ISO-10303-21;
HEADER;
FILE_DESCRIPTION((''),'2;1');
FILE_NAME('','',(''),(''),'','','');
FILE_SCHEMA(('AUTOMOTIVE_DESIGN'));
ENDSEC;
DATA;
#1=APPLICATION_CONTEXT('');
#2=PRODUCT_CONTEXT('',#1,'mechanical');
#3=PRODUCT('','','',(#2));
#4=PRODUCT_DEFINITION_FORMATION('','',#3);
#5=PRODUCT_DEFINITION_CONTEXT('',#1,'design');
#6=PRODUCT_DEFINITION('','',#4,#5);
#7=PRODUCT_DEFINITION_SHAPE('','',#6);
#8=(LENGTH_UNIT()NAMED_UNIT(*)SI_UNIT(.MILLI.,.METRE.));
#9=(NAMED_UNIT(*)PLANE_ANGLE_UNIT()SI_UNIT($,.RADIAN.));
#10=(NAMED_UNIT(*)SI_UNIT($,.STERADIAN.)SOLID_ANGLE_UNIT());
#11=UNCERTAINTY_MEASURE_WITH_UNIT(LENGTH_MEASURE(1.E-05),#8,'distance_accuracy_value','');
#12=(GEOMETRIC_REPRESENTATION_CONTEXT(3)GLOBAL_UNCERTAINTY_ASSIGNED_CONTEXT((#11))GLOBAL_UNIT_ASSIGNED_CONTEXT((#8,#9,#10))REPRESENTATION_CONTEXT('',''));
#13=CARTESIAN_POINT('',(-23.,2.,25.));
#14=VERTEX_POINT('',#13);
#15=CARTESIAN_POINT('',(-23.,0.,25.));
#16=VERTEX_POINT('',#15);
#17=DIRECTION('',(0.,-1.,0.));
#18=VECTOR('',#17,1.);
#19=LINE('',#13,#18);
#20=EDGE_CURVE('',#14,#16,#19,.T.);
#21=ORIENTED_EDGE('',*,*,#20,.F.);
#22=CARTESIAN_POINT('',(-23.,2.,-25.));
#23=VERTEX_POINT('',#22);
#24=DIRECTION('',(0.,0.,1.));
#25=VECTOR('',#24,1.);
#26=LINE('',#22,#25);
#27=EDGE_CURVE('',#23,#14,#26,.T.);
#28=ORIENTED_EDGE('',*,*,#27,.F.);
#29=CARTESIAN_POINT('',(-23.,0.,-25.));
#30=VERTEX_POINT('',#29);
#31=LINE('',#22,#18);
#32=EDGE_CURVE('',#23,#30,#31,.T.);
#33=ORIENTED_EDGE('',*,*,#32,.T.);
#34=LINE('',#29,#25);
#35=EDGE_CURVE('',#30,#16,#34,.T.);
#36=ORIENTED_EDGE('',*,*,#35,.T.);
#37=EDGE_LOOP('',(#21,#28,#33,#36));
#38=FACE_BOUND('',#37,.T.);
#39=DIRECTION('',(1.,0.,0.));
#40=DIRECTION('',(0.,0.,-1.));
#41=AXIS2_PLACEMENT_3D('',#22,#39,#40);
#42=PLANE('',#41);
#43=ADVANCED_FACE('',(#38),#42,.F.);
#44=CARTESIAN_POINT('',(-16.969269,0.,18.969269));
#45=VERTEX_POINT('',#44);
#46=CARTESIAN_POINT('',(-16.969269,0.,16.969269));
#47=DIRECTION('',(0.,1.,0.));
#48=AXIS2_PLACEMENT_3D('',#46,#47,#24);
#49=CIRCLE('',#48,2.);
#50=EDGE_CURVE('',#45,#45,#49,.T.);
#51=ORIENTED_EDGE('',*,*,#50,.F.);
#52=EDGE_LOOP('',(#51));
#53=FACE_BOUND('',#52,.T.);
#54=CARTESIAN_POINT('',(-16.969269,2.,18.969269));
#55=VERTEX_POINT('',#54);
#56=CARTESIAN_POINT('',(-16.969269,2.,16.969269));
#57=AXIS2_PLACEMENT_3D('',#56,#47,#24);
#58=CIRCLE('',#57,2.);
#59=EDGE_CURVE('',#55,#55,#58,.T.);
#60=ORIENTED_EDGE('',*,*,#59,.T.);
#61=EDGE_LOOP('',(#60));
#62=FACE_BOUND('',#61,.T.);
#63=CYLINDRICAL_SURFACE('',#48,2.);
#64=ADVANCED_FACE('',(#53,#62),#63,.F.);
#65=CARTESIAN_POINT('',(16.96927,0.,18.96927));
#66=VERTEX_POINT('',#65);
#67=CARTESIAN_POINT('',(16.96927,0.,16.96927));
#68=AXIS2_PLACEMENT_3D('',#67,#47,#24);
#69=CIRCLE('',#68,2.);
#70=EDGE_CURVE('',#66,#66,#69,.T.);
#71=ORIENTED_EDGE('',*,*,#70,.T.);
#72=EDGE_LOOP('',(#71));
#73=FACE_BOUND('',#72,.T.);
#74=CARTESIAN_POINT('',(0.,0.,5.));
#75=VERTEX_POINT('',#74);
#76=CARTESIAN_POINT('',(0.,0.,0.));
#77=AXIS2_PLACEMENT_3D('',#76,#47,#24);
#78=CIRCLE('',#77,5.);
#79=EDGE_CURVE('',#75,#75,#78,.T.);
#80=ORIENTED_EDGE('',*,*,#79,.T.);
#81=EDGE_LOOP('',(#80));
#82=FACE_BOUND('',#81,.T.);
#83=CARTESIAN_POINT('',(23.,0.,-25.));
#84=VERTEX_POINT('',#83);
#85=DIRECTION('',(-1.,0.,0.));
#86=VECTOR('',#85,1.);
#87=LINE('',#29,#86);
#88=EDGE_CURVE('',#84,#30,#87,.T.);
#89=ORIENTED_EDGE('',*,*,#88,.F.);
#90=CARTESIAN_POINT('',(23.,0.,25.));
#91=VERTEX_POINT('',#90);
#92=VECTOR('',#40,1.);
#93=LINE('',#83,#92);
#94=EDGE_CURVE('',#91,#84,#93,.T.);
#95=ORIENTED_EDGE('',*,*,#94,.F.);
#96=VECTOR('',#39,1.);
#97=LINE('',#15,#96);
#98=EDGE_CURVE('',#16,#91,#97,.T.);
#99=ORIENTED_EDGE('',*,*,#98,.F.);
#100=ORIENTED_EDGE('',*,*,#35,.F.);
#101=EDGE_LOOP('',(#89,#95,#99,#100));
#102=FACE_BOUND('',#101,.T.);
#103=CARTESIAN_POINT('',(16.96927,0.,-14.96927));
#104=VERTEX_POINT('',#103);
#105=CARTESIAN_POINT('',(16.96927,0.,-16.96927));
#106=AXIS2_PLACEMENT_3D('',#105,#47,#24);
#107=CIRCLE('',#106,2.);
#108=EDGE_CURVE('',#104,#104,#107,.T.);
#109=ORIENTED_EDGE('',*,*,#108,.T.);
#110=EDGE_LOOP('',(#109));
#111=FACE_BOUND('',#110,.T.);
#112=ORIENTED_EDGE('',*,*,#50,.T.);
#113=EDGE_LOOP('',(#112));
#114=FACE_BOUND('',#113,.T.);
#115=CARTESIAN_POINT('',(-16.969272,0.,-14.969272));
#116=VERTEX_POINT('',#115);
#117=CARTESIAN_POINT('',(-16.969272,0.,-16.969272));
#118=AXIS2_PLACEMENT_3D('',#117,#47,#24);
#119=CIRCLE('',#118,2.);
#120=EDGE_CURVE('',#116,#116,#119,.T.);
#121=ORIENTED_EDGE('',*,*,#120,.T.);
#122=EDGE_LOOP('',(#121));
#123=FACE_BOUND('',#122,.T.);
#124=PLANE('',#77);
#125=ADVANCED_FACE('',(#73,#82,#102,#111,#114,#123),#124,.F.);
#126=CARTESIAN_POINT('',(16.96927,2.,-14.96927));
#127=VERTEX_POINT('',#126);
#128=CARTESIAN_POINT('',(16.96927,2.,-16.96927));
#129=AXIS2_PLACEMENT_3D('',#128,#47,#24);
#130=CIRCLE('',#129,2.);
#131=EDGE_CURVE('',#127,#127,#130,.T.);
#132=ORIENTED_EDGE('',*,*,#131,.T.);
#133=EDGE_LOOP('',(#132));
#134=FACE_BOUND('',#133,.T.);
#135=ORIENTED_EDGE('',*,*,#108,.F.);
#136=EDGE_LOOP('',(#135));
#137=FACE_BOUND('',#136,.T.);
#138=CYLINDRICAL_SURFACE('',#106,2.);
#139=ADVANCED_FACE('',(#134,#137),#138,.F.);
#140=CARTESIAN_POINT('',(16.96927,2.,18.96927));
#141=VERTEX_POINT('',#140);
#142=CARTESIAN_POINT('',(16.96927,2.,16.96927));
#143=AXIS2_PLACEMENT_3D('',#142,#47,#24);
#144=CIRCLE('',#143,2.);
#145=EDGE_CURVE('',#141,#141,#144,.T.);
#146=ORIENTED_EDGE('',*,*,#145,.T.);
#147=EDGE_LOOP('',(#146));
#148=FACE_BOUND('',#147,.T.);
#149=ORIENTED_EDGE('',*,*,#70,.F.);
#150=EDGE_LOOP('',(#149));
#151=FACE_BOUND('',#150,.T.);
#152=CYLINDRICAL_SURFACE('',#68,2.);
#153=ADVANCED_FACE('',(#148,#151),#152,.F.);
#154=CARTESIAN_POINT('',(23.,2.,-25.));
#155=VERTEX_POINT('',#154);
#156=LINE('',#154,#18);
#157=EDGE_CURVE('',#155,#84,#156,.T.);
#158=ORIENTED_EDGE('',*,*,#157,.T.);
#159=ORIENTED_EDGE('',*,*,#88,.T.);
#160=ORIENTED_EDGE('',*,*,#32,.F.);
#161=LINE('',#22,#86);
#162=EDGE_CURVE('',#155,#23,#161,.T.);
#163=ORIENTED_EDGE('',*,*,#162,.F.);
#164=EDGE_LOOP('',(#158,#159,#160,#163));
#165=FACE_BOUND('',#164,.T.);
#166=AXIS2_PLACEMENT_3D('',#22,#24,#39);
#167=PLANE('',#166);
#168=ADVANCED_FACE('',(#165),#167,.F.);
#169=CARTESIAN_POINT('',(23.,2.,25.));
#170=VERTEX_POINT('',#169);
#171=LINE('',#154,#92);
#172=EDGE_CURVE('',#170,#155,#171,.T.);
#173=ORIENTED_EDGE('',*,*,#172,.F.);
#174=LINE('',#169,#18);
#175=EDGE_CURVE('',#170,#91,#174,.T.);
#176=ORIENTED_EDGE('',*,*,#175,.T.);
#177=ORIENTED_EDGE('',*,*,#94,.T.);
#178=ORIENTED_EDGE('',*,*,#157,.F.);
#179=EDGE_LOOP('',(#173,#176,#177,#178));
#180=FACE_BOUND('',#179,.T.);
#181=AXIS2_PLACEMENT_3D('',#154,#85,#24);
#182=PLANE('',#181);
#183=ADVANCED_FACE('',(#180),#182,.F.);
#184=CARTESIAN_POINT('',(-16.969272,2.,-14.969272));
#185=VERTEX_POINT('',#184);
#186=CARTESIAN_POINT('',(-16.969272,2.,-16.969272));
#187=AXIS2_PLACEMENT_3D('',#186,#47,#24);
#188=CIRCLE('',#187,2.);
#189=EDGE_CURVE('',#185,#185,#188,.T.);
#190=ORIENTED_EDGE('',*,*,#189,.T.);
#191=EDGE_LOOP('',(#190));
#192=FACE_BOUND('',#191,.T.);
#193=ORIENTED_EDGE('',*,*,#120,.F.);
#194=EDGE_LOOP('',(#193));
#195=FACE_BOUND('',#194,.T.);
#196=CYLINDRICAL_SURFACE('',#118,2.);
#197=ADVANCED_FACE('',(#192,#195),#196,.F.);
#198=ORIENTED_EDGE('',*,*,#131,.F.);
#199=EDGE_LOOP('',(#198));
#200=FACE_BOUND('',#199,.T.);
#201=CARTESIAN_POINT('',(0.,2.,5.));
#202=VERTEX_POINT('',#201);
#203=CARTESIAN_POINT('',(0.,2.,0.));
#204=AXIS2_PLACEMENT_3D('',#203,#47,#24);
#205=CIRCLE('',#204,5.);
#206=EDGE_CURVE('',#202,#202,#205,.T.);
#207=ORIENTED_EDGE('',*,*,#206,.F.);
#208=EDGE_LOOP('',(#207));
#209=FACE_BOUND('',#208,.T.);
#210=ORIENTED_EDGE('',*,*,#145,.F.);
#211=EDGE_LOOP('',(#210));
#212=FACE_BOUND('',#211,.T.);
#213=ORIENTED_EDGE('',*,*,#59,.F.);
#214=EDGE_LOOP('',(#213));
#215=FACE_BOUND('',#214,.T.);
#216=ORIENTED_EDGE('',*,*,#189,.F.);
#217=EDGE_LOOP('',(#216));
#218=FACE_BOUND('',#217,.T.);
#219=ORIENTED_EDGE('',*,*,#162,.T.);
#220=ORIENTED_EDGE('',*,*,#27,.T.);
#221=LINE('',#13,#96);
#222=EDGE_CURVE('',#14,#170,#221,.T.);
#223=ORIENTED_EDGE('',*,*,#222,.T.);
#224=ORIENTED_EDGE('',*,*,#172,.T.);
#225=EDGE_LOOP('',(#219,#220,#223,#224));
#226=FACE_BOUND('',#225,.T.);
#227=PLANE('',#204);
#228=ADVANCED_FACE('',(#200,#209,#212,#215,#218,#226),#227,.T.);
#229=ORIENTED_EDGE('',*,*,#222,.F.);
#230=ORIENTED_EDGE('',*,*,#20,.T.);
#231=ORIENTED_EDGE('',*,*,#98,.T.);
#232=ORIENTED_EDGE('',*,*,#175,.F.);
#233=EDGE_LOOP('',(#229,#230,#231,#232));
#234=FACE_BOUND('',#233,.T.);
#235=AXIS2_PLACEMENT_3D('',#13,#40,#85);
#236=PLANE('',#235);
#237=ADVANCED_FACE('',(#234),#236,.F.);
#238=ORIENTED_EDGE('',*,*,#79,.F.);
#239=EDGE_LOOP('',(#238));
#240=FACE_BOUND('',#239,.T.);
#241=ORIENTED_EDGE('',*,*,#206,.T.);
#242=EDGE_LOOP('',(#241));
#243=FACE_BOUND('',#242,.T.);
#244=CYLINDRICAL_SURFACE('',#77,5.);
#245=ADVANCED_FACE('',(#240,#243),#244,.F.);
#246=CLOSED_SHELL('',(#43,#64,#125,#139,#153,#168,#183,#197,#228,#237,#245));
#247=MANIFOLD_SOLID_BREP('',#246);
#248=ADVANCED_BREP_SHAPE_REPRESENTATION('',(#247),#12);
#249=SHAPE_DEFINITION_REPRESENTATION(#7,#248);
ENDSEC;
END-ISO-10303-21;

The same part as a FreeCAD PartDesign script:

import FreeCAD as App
import Part
import Sketcher

doc = App.newDocument("Part")
body = doc.addObject("PartDesign::Body", "Body")

sketch1 = body.newObject("Sketcher::SketchObject", "Sketch")
sketch1.AttachmentSupport = (doc.getObject("XZ_Plane"), [""])
sketch1.MapMode = "FlatFace"
sketch1.addGeometry(Part.LineSegment(App.Vector(-23, -25, 0), App.Vector(-23, 25, 0)), False)
sketch1.addGeometry(Part.LineSegment(App.Vector(-23, 25, 0), App.Vector(23, 25, 0)), False)
sketch1.addGeometry(Part.LineSegment(App.Vector(23, 25, 0), App.Vector(23, -25, 0)), False)
sketch1.addGeometry(Part.LineSegment(App.Vector(23, -25, 0), App.Vector(-23, -25, 0)), False)
sketch1.addConstraint(Sketcher.Constraint("Coincident", 0, 2, 1, 1))
sketch1.addConstraint(Sketcher.Constraint("Coincident", 1, 2, 2, 1))
sketch1.addConstraint(Sketcher.Constraint("Coincident", 2, 2, 3, 1))
sketch1.addConstraint(Sketcher.Constraint("Coincident", 3, 2, 0, 1))
sketch1.addConstraint(Sketcher.Constraint("Vertical", 0))
sketch1.addConstraint(Sketcher.Constraint("Horizontal", 1))
sketch1.addConstraint(Sketcher.Constraint("Vertical", 2))
sketch1.addConstraint(Sketcher.Constraint("Horizontal", 3))
sketch1.addConstraint(Sketcher.Constraint("Symmetric", 0, 2, 2, 2, -1, 1))
sketch1.addConstraint(Sketcher.Constraint("DistanceX", 1, 1, 1, 2, 46.0))
sketch1.addConstraint(Sketcher.Constraint("DistanceY", 0, 1, 0, 2, 50.0))
pad1 = body.newObject("PartDesign::Pad", "Pad")
pad1.Profile = sketch1
pad1.Length = 2
pad1.Reversed = True

sketch2 = body.newObject("Sketcher::SketchObject", "Sketch001")
sketch2.AttachmentSupport = (doc.getObject("XZ_Plane"), [""])
sketch2.MapMode = "FlatFace"
sketch2.AttachmentOffset = App.Placement(App.Vector(0, 0, -2), App.Rotation())
sketch2.addGeometry(Part.Circle(App.Vector(0, 0, 0), App.Vector(0, 0, 1), 5), False)
sketch2.addConstraint(Sketcher.Constraint("Coincident", 0, 3, -1, 1))
sketch2.addConstraint(Sketcher.Constraint("Diameter", 0, 10.0))
pocket1 = body.newObject("PartDesign::Pocket", "Pocket")
pocket1.Profile = sketch2
pocket1.Type = "ThroughAll"
pocket1.Reversed = True

sketch3 = body.newObject("Sketcher::SketchObject", "Sketch002")
sketch3.AttachmentSupport = (doc.getObject("XZ_Plane"), [""])
sketch3.MapMode = "FlatFace"
sketch3.AttachmentOffset = App.Placement(App.Vector(0, 0, -2), App.Rotation())
sketch3.addGeometry(Part.Circle(App.Vector(-17, -17, 0), App.Vector(0, 0, 1), 2), False)
sketch3.addGeometry(Part.Circle(App.Vector(17, -17, 0), App.Vector(0, 0, 1), 2), False)
sketch3.addGeometry(Part.Circle(App.Vector(17, 17, 0), App.Vector(0, 0, 1), 2), False)
sketch3.addGeometry(Part.Circle(App.Vector(-17, 17, 0), App.Vector(0, 0, 1), 2), False)
sketch3.addConstraint(Sketcher.Constraint("Equal", 0, 1))
sketch3.addConstraint(Sketcher.Constraint("Equal", 1, 2))
sketch3.addConstraint(Sketcher.Constraint("Equal", 2, 3))
sketch3.addConstraint(Sketcher.Constraint("Symmetric", 0, 3, 2, 3, -1, 1))
sketch3.addConstraint(Sketcher.Constraint("Symmetric", 1, 3, 3, 3, -1, 1))
sketch3.addConstraint(Sketcher.Constraint("Symmetric", 0, 3, 1, 3, -2))
sketch3.addConstraint(Sketcher.Constraint("Diameter", 0, 4.0))
sketch3.addConstraint(Sketcher.Constraint("DistanceX", 0, 3, -1, 1, 16.969272))
sketch3.addConstraint(Sketcher.Constraint("DistanceY", 0, 3, -1, 1, 16.969272))
pocket2 = body.newObject("PartDesign::Pocket", "Pocket001")
pocket2.Profile = sketch3
pocket2.Type = "ThroughAll"
pocket2.Reversed = True

doc.recompute()
